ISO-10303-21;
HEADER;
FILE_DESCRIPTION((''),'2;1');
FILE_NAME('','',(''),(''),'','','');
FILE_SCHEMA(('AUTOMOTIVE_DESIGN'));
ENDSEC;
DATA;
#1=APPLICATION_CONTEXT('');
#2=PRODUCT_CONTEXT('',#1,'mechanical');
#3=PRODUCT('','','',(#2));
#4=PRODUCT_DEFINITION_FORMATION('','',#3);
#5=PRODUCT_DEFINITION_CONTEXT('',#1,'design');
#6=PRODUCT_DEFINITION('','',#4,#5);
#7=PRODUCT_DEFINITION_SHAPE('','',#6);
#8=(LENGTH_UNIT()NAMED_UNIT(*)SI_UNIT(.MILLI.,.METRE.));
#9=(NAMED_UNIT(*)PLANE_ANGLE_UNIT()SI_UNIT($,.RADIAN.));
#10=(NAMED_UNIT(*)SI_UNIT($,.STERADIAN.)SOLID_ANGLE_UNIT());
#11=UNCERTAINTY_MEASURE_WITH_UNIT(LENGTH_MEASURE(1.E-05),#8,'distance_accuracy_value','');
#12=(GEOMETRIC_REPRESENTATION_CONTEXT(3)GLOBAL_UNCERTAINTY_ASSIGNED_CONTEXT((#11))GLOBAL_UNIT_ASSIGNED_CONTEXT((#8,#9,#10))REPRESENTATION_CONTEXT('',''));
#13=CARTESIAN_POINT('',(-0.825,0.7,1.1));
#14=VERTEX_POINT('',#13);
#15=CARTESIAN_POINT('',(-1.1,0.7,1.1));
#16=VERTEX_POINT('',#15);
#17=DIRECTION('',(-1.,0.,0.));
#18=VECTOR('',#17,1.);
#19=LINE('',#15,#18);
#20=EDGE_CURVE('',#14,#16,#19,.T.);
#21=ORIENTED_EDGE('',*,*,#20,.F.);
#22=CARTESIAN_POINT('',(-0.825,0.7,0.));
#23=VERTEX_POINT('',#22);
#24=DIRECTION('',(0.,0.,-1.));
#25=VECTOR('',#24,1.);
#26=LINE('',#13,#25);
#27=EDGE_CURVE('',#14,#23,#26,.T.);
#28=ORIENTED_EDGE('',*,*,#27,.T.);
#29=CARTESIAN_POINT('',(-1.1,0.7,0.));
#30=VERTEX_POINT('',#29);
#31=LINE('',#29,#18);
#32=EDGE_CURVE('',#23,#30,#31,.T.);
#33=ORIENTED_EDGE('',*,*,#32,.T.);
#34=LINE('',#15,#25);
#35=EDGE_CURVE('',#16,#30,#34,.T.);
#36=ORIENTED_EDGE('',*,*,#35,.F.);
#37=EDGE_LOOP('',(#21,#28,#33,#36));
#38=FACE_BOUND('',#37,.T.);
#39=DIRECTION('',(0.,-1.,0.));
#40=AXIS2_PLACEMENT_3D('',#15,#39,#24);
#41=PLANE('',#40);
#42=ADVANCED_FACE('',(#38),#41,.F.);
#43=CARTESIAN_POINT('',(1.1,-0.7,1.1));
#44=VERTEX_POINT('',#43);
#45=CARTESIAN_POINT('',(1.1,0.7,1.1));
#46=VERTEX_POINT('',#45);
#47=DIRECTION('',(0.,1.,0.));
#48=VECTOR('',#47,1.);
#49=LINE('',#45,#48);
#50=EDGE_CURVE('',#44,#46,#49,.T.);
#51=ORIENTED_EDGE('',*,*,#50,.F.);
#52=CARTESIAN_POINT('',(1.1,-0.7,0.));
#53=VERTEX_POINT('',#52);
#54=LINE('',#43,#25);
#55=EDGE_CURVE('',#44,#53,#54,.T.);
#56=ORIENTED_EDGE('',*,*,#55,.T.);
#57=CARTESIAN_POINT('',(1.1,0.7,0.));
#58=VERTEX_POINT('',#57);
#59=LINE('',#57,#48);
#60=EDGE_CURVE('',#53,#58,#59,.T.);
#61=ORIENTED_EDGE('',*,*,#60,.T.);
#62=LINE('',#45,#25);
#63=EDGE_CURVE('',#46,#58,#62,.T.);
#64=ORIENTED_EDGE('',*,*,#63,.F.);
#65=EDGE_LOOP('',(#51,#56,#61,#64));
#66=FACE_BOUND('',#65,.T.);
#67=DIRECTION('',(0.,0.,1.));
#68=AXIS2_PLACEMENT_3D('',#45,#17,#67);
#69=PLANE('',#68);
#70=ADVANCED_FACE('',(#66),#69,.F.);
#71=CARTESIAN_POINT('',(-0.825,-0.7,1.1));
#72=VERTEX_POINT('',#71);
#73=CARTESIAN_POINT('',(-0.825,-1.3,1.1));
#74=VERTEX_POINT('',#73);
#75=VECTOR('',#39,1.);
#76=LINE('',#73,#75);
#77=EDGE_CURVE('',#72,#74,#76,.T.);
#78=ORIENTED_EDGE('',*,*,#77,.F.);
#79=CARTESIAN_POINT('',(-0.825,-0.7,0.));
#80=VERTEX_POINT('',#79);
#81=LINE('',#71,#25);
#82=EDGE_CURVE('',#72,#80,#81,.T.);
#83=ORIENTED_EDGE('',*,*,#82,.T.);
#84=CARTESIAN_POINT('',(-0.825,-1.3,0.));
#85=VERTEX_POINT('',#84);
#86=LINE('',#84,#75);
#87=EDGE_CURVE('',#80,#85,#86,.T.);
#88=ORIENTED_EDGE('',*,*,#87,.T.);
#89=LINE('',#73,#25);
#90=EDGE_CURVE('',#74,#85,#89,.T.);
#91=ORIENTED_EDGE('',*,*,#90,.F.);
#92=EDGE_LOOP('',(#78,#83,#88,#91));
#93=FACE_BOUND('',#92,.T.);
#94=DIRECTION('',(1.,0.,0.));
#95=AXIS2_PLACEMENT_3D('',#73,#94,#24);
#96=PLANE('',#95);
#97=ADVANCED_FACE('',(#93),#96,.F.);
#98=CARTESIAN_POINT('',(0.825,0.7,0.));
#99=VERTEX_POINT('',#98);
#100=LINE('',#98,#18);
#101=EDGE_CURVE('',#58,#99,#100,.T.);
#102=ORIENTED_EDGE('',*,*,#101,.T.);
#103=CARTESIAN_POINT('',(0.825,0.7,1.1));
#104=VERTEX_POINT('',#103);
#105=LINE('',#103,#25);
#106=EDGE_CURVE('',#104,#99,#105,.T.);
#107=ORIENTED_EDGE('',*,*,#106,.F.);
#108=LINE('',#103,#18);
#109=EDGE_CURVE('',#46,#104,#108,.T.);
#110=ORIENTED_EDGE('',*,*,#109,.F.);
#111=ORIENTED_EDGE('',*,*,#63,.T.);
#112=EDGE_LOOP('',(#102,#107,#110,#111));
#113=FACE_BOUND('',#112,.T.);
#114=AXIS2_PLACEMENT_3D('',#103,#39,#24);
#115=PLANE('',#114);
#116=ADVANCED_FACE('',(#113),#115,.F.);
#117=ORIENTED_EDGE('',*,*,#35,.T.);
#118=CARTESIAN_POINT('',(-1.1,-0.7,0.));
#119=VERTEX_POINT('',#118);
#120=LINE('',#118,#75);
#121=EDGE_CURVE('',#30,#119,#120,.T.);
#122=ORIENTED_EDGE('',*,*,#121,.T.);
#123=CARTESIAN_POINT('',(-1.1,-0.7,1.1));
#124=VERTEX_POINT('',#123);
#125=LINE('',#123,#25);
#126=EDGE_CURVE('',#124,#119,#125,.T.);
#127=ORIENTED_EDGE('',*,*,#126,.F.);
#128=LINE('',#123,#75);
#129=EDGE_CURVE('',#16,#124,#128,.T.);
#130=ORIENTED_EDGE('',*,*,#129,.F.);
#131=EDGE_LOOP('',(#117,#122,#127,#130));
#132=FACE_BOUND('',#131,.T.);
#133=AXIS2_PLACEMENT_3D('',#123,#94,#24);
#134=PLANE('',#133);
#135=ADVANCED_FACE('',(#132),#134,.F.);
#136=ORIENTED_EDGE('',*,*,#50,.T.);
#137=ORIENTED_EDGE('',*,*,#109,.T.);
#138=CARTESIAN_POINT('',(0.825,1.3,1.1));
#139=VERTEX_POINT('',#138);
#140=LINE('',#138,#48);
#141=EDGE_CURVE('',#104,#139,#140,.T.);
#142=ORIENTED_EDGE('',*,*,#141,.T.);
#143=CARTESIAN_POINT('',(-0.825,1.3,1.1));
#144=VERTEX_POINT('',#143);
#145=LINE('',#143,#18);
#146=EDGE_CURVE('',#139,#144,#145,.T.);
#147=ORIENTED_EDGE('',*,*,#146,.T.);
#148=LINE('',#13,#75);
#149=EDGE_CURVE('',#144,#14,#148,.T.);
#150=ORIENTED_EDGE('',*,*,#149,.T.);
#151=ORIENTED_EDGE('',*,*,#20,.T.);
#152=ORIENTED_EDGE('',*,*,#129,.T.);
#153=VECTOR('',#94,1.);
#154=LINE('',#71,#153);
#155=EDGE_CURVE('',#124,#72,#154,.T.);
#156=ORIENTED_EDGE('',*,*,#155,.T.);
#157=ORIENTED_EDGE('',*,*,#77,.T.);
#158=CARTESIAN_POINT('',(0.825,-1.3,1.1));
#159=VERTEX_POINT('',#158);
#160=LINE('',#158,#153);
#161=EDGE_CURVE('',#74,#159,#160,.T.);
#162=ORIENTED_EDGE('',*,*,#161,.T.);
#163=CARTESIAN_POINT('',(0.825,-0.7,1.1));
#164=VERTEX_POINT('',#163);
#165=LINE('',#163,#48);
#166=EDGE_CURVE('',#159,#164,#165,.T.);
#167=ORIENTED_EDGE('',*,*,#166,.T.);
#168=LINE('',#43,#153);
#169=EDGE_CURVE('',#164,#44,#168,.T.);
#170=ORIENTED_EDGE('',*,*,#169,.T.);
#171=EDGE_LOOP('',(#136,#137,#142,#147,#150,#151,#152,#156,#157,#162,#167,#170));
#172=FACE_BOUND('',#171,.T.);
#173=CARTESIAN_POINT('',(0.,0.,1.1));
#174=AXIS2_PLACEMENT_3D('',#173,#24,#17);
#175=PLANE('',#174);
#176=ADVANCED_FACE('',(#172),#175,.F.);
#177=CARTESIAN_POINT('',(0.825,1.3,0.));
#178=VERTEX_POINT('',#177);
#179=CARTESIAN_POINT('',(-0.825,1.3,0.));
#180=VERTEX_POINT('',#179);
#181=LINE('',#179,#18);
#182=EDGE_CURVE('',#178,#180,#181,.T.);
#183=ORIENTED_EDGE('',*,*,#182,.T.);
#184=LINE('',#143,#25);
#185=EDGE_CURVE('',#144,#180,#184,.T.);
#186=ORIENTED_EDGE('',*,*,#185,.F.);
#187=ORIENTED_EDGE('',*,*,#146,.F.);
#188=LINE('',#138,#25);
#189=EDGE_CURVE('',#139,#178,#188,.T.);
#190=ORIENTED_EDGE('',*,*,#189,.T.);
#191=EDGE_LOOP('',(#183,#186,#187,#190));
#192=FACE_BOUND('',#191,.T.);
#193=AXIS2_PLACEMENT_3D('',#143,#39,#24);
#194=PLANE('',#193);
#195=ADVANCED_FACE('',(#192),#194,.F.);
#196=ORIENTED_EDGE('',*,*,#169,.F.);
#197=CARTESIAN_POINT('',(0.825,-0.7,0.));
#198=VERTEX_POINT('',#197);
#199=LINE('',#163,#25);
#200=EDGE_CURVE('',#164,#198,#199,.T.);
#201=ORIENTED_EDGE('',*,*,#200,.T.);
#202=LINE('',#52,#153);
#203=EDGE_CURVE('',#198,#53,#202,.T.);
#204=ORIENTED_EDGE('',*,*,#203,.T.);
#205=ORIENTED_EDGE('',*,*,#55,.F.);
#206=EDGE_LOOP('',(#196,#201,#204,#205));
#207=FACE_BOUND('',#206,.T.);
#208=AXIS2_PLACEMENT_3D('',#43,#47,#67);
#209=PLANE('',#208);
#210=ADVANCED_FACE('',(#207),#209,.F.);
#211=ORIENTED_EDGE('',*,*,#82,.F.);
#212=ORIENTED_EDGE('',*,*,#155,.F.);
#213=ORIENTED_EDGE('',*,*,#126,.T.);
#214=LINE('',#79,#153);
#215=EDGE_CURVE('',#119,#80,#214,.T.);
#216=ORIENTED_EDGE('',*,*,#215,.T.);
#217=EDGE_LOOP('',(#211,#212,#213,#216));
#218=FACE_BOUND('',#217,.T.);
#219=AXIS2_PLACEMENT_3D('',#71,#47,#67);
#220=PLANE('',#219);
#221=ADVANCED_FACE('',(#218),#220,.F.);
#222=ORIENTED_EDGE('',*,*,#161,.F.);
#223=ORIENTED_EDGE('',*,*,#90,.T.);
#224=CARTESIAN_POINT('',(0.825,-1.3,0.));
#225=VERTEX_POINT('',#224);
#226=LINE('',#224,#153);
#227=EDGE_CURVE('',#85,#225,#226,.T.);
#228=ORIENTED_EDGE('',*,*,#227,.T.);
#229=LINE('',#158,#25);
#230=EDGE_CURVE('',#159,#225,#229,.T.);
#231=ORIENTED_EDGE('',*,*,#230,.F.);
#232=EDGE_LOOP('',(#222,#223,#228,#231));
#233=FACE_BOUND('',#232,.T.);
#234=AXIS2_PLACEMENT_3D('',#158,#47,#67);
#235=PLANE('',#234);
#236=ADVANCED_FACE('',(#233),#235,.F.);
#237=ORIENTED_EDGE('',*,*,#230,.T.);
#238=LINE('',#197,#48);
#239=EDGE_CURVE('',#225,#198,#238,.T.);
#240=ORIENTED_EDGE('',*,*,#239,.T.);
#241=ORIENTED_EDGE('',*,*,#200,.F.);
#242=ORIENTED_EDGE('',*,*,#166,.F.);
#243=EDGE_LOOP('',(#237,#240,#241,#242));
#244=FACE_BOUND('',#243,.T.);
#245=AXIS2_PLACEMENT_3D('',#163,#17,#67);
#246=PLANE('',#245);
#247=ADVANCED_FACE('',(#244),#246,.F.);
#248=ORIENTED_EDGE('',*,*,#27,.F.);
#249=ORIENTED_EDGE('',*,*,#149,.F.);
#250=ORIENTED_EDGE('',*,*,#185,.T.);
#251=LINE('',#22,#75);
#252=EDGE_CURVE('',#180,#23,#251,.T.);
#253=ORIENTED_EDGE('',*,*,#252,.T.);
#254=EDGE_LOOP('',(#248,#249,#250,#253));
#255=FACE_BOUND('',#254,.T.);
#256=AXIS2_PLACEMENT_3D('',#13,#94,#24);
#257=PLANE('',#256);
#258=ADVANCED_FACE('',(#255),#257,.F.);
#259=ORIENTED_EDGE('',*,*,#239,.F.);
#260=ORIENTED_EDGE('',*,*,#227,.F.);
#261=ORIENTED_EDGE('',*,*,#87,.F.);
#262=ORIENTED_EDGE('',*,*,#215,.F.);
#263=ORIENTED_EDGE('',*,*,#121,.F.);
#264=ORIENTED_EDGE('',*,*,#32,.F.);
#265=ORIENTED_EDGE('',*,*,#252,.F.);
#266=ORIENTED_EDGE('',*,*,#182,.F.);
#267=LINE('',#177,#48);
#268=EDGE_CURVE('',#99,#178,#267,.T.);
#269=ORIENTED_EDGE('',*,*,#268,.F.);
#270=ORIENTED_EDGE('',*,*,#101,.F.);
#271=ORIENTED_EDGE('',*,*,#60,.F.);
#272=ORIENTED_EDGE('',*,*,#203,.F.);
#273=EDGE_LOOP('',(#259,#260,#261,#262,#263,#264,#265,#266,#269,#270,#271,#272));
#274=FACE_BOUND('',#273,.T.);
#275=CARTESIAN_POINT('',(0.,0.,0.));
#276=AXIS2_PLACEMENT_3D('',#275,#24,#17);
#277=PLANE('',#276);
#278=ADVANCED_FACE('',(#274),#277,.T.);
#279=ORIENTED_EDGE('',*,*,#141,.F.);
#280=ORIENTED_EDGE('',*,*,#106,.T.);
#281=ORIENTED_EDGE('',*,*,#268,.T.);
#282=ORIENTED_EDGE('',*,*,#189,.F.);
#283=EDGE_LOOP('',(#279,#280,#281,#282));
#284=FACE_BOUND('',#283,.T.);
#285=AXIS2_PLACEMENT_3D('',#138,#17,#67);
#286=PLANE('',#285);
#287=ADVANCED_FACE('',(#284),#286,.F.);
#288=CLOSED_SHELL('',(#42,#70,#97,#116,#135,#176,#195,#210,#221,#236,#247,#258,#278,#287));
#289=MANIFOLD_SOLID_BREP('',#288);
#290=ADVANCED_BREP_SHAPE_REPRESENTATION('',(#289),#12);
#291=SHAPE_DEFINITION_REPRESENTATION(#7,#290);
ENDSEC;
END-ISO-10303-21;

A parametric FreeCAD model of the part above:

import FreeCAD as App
import Part
import Sketcher

V = App.Vector
Q = App.Units.Quantity

doc = App.newDocument("Part")
params = doc.addObject("Spreadsheet::Sheet", "Params")
for row, (alias, value) in enumerate([
    ("sketch1_height", "0.6 mm"),
    ("sketch1_height2", "1.4 mm"),
    ("sketch1_width", "1.65 mm"),
    ("pad1_length", "1.1 mm"),
], start=1):
    params.set(f"A{row}", alias)
    params.set(f"B{row}", "=" + value)
    params.setAlias(f"B{row}", alias)

body = doc.addObject("PartDesign::Body", "Body")

# Sketch on XY plane
sketch1 = body.newObject("Sketcher::SketchObject", "Sketch")
sketch1.AttachmentSupport = (doc.getObject("XY_Plane"), [""])
sketch1.MapMode = "FlatFace"
sketch1.addGeometry(Part.LineSegment(V(-0.825, -0.7, 0), V(-0.825, -1.3, 0)), False)
sketch1.addGeometry(Part.LineSegment(V(-0.825, -1.3, 0), V(0.825, -1.3, 0)), False)
sketch1.addGeometry(Part.LineSegment(V(0.825, -1.3, 0), V(0.825, -0.7, 0)), False)
sketch1.addGeometry(Part.LineSegment(V(0.825, -0.7, 0), V(1.1, -0.7, 0)), False)
sketch1.addGeometry(Part.LineSegment(V(1.1, -0.7, 0), V(1.1, 0.7, 0)), False)
sketch1.addGeometry(Part.LineSegment(V(1.1, 0.7, 0), V(0.825, 0.7, 0)), False)
sketch1.addGeometry(Part.LineSegment(V(0.825, 0.7, 0), V(0.825, 1.3, 0)), False)
sketch1.addGeometry(Part.LineSegment(V(0.825, 1.3, 0), V(-0.825, 1.3, 0)), False)
sketch1.addGeometry(Part.LineSegment(V(-0.825, 1.3, 0), V(-0.825, 0.7, 0)), False)
sketch1.addGeometry(Part.LineSegment(V(-0.825, 0.7, 0), V(-1.1, 0.7, 0)), False)
sketch1.addGeometry(Part.LineSegment(V(-1.1, 0.7, 0), V(-1.1, -0.7, 0)), False)
sketch1.addGeometry(Part.LineSegment(V(-1.1, -0.7, 0), V(-0.825, -0.7, 0)), False)
sketch1.addConstraint(Sketcher.Constraint("Coincident", 0, 2, 1, 1))
sketch1.addConstraint(Sketcher.Constraint("Coincident", 1, 2, 2, 1))
sketch1.addConstraint(Sketcher.Constraint("Coincident", 2, 2, 3, 1))
sketch1.addConstraint(Sketcher.Constraint("Coincident", 3, 2, 4, 1))
sketch1.addConstraint(Sketcher.Constraint("Coincident", 4, 2, 5, 1))
sketch1.addConstraint(Sketcher.Constraint("Coincident", 5, 2, 6, 1))
sketch1.addConstraint(Sketcher.Constraint("Coincident", 6, 2, 7, 1))
sketch1.addConstraint(Sketcher.Constraint("Coincident", 7, 2, 8, 1))
sketch1.addConstraint(Sketcher.Constraint("Coincident", 8, 2, 9, 1))
sketch1.addConstraint(Sketcher.Constraint("Coincident", 9, 2, 10, 1))
sketch1.addConstraint(Sketcher.Constraint("Coincident", 10, 2, 11, 1))
sketch1.addConstraint(Sketcher.Constraint("Coincident", 11, 2, 0, 1))
sketch1.addConstraint(Sketcher.Constraint("Vertical", 0))
sketch1.addConstraint(Sketcher.Constraint("Horizontal", 1))
sketch1.addConstraint(Sketcher.Constraint("Vertical", 2))
sketch1.addConstraint(Sketcher.Constraint("Horizontal", 3))
sketch1.addConstraint(Sketcher.Constraint("Vertical", 4))
sketch1.addConstraint(Sketcher.Constraint("Horizontal", 5))
sketch1.addConstraint(Sketcher.Constraint("Vertical", 6))
sketch1.addConstraint(Sketcher.Constraint("Horizontal", 7))
sketch1.addConstraint(Sketcher.Constraint("Vertical", 8))
sketch1.addConstraint(Sketcher.Constraint("Horizontal", 9))
sketch1.addConstraint(Sketcher.Constraint("Vertical", 10))
sketch1.addConstraint(Sketcher.Constraint("Horizontal", 11))
sketch1.addConstraint(Sketcher.Constraint("Symmetric", 0, 2, 6, 2, -1, 1))
sketch1.addConstraint(Sketcher.Constraint("Symmetric", 2, 2, 8, 2, -1, 1))
sketch1.addConstraint(Sketcher.Constraint("Symmetric", 4, 2, 10, 2, -1, 1))
sketch1.addConstraint(Sketcher.Constraint("Symmetric", 5, 2, 8, 2, -2))
sketch1.addConstraint(Sketcher.Constraint("DistanceY", 0, 2, 0, 1, Q("0.6 mm")))
sketch1.addConstraint(Sketcher.Constraint("DistanceY", 4, 1, 4, 2, Q("1.4 mm")))
sketch1.addConstraint(Sketcher.Constraint("DistanceX", 1, 1, 1, 2, Q("1.65 mm")))
sketch1.addConstraint(Sketcher.Constraint("DistanceX", -1, 1, 3, 2, Q("1.1 mm")))
sketch1.setExpression("Constraints[28]", "Params.sketch1_height")
sketch1.setExpression("Constraints[29]", "Params.sketch1_height2")
sketch1.setExpression("Constraints[30]", "Params.sketch1_width")
pad1 = body.newObject("PartDesign::Pad", "Pad")
pad1.Profile = sketch1
pad1.setExpression("Length", "Params.pad1_length")

doc.recompute()
